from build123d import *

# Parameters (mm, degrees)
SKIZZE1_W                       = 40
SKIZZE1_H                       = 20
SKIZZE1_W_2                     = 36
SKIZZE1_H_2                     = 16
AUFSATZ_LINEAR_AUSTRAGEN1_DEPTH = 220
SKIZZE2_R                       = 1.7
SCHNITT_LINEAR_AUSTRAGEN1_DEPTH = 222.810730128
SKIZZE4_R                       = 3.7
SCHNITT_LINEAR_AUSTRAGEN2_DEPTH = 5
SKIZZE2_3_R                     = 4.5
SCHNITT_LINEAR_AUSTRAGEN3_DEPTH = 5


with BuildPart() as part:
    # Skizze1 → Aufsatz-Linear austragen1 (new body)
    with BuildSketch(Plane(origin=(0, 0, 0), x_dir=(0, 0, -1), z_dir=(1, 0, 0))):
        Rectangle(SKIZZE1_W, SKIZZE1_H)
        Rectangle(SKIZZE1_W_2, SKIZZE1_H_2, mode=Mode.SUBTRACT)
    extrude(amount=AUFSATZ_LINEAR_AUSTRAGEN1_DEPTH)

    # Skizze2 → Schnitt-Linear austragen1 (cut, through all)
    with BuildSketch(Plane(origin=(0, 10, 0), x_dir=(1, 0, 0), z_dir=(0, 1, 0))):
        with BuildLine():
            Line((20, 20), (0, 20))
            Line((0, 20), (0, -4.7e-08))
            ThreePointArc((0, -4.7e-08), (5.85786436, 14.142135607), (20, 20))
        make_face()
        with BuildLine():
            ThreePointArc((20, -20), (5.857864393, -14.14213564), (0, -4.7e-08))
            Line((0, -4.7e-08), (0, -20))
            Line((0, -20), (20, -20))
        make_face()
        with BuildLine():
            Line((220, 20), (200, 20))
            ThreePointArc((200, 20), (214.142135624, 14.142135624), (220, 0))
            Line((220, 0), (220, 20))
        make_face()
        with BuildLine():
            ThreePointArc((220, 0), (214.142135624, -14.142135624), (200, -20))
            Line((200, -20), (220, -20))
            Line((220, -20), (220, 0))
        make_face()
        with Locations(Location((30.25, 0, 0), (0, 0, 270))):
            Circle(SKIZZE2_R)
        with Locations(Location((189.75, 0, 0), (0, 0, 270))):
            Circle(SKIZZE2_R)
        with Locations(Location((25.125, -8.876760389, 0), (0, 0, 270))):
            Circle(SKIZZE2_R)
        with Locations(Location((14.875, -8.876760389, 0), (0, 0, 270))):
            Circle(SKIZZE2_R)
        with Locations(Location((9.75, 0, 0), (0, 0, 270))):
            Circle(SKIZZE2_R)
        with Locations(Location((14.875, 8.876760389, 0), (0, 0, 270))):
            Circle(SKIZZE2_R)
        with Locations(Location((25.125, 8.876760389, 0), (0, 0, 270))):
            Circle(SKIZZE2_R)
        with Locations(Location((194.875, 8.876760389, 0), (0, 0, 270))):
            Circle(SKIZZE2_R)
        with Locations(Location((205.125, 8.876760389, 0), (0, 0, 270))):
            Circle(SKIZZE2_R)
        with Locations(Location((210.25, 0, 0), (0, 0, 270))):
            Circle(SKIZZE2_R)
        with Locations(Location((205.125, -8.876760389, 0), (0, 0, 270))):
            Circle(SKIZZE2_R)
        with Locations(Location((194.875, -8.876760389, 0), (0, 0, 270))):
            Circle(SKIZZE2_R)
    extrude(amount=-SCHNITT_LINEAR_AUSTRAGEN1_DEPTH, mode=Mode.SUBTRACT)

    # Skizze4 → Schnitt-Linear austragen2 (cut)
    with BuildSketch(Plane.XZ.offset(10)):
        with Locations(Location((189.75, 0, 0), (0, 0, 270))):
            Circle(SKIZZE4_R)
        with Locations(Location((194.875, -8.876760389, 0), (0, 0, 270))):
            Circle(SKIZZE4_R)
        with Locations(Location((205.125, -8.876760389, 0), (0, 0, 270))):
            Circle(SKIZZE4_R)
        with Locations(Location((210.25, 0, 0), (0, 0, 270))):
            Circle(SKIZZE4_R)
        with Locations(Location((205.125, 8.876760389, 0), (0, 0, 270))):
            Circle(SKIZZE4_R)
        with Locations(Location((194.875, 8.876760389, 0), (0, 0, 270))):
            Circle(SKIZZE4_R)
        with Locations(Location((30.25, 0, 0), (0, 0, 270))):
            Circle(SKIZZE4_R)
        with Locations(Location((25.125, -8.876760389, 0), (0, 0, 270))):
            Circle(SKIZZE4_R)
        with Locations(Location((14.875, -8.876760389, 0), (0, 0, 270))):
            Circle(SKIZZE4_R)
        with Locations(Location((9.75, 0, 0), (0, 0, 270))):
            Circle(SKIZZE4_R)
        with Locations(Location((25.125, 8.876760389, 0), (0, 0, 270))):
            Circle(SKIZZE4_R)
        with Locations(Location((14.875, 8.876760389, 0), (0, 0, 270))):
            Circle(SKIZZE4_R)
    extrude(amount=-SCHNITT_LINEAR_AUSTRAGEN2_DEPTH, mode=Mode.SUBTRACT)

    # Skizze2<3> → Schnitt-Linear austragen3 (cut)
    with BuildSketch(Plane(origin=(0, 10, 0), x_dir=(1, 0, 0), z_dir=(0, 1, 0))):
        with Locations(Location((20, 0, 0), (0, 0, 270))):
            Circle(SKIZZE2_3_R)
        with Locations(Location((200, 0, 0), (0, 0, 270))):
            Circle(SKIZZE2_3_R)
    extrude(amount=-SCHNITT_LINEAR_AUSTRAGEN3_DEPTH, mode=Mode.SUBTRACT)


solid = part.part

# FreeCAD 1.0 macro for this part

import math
import FreeCAD as App
import Part
import Sketcher

doc = App.newDocument("Part")
body = doc.addObject("PartDesign::Body", "Body")

# Sketch on YZ plane
sketch1 = body.newObject("Sketcher::SketchObject", "Sketch")
sketch1.AttachmentSupport = (doc.getObject("YZ_Plane"), [""])
sketch1.MapMode = "FlatFace"
sketch1.addGeometry(Part.LineSegment(App.Vector(10, 20, 0), App.Vector(-10, 20, 0)), False)
sketch1.addGeometry(Part.LineSegment(App.Vector(-10, 20, 0), App.Vector(-10, -20, 0)), False)
sketch1.addGeometry(Part.LineSegment(App.Vector(-10, -20, 0), App.Vector(10, -20, 0)), False)
sketch1.addGeometry(Part.LineSegment(App.Vector(10, -20, 0), App.Vector(10, 20, 0)), False)
sketch1.addGeometry(Part.LineSegment(App.Vector(-8, -18, 0), App.Vector(-8, 18, 0)), False)
sketch1.addGeometry(Part.LineSegment(App.Vector(-8, 18, 0), App.Vector(8, 18, 0)), False)
sketch1.addGeometry(Part.LineSegment(App.Vector(8, 18, 0), App.Vector(8, -18, 0)), False)
sketch1.addGeometry(Part.LineSegment(App.Vector(8, -18, 0), App.Vector(-8, -18, 0)), False)
sketch1.addConstraint(Sketcher.Constraint("Coincident", 0, 2, 1, 1))
sketch1.addConstraint(Sketcher.Constraint("Coincident", 1, 2, 2, 1))
sketch1.addConstraint(Sketcher.Constraint("Coincident", 2, 2, 3, 1))
sketch1.addConstraint(Sketcher.Constraint("Coincident", 3, 2, 0, 1))
sketch1.addConstraint(Sketcher.Constraint("Coincident", 4, 2, 5, 1))
sketch1.addConstraint(Sketcher.Constraint("Coincident", 5, 2, 6, 1))
sketch1.addConstraint(Sketcher.Constraint("Coincident", 6, 2, 7, 1))
sketch1.addConstraint(Sketcher.Constraint("Coincident", 7, 2, 4, 1))
sketch1.addConstraint(Sketcher.Constraint("Horizontal", 0))
sketch1.addConstraint(Sketcher.Constraint("Vertical", 1))
sketch1.addConstraint(Sketcher.Constraint("Horizontal", 2))
sketch1.addConstraint(Sketcher.Constraint("Vertical", 3))
sketch1.addConstraint(Sketcher.Constraint("Vertical", 4))
sketch1.addConstraint(Sketcher.Constraint("Horizontal", 5))
sketch1.addConstraint(Sketcher.Constraint("Vertical", 6))
sketch1.addConstraint(Sketcher.Constraint("Horizontal", 7))
sketch1.addConstraint(Sketcher.Constraint("Symmetric", 0, 2, 2, 2, -1, 1))
sketch1.addConstraint(Sketcher.Constraint("Symmetric", 4, 2, 6, 2, -1, 1))
sketch1.addConstraint(Sketcher.Constraint("DistanceX", 0, 2, 0, 1, 20.0))
sketch1.addConstraint(Sketcher.Constraint("DistanceX", 5, 1, 5, 2, 16.0))
sketch1.addConstraint(Sketcher.Constraint("DistanceY", 1, 2, 1, 1, 40.0))
sketch1.addConstraint(Sketcher.Constraint("DistanceY", 4, 1, 4, 2, 36.0))
pad1 = body.newObject("PartDesign::Pad", "Pad")
pad1.Profile = sketch1
pad1.Length = 220

# Sketch on XZ plane
sketch2 = body.newObject("Sketcher::SketchObject", "Sketch001")
sketch2.AttachmentSupport = (doc.getObject("XZ_Plane"), [""])
sketch2.MapMode = "FlatFace"
sketch2.AttachmentOffset = App.Placement(App.Vector(0, 0, -10), App.Rotation())
sketch2.addGeometry(Part.LineSegment(App.Vector(20, -20, 0), App.Vector(0, -20, 0)), False)
sketch2.addGeometry(Part.LineSegment(App.Vector(0, -20, 0), App.Vector(0, 0, 0)), False)
sketch2.addGeometry(Part.ArcOfCircle(Part.Circle(App.Vector(20, 0, 0), App.Vector(0, 0, 1), 20), math.radians(180), math.radians(270)), False)
sketch2.addGeometry(Part.ArcOfCircle(Part.Circle(App.Vector(20, 0, 0), App.Vector(0, 0, 1), 20), math.radians(90), math.radians(180)), False)
sketch2.addGeometry(Part.LineSegment(App.Vector(0, 0, 0), App.Vector(0, 20, 0)), False)
sketch2.addGeometry(Part.LineSegment(App.Vector(0, 20, 0), App.Vector(20, 20, 0)), False)
sketch2.addGeometry(Part.LineSegment(App.Vector(220, -20, 0), App.Vector(200, -20, 0)), False)
sketch2.addGeometry(Part.ArcOfCircle(Part.Circle(App.Vector(200, 0, 0), App.Vector(0, 0, 1), 20), math.radians(-90), math.radians(0)), False)
sketch2.addGeometry(Part.LineSegment(App.Vector(220, 0, 0), App.Vector(220, -20, 0)), False)
sketch2.addGeometry(Part.ArcOfCircle(Part.Circle(App.Vector(200, 0, 0), App.Vector(0, 0, 1), 20), math.radians(0), math.radians(90)), False)
sketch2.addGeometry(Part.LineSegment(App.Vector(200, 20, 0), App.Vector(220, 20, 0)), False)
sketch2.addGeometry(Part.LineSegment(App.Vector(220, 20, 0), App.Vector(220, 0, 0)), False)
sketch2.addGeometry(Part.Circle(App.Vector(30.2, 0, 0), App.Vector(0, 0, 1), 1.7), False)
sketch2.addGeometry(Part.Circle(App.Vector(189.8, 0, 0), App.Vector(0, 0, 1), 1.7), False)
sketch2.addGeometry(Part.Circle(App.Vector(25.1, 8.9, 0), App.Vector(0, 0, 1), 1.7), False)
sketch2.addGeometry(Part.Circle(App.Vector(14.9, 8.9, 0), App.Vector(0, 0, 1), 1.7), False)
sketch2.addGeometry(Part.Circle(App.Vector(9.8, 0, 0), App.Vector(0, 0, 1), 1.7), False)
sketch2.addGeometry(Part.Circle(App.Vector(14.9, -8.9, 0), App.Vector(0, 0, 1), 1.7), False)
sketch2.addGeometry(Part.Circle(App.Vector(25.1, -8.9, 0), App.Vector(0, 0, 1), 1.7), False)
sketch2.addGeometry(Part.Circle(App.Vector(194.9, -8.9, 0), App.Vector(0, 0, 1), 1.7), False)
sketch2.addGeometry(Part.Circle(App.Vector(205.1, -8.9, 0), App.Vector(0, 0, 1), 1.7), False)
sketch2.addGeometry(Part.Circle(App.Vector(210.2, 0, 0), App.Vector(0, 0, 1), 1.7), False)
sketch2.addGeometry(Part.Circle(App.Vector(205.1, 8.9, 0), App.Vector(0, 0, 1), 1.7), False)
sketch2.addGeometry(Part.Circle(App.Vector(194.9, 8.9, 0), App.Vector(0, 0, 1), 1.7), False)
sketch2.addConstraint(Sketcher.Constraint("Coincident", 0, 2, 1, 1))
sketch2.addConstraint(Sketcher.Constraint("Tangent", 1, 2, 2, 1))
sketch2.addConstraint(Sketcher.Constraint("Tangent", 2, 2, 0, 1))
sketch2.addConstraint(Sketcher.Constraint("Tangent", 3, 2, 4, 1))
sketch2.addConstraint(Sketcher.Constraint("Coincident", 4, 2, 5, 1))
sketch2.addConstraint(Sketcher.Constraint("Tangent", 5, 2, 3, 1))
sketch2.addConstraint(Sketcher.Constraint("Tangent", 6, 2, 7, 1))
sketch2.addConstraint(Sketcher.Constraint("Tangent", 7, 2, 8, 1))
sketch2.addConstraint(Sketcher.Constraint("Coincident", 8, 2, 6, 1))
sketch2.addConstraint(Sketcher.Constraint("Tangent", 9, 2, 10, 1))
sketch2.addConstraint(Sketcher.Constraint("Coincident", 10, 2, 11, 1))
sketch2.addConstraint(Sketcher.Constraint("Tangent", 11, 2, 9, 1))
sketch2.addConstraint(Sketcher.Constraint("Horizontal", 0))
sketch2.addConstraint(Sketcher.Constraint("Vertical", 1))
sketch2.addConstraint(Sketcher.Constraint("Vertical", 4))
sketch2.addConstraint(Sketcher.Constraint("Horizontal", 5))
sketch2.addConstraint(Sketcher.Constraint("Horizontal", 6))
sketch2.addConstraint(Sketcher.Constraint("Vertical", 8))
sketch2.addConstraint(Sketcher.Constraint("Horizontal", 10))
sketch2.addConstraint(Sketcher.Constraint("Vertical", 11))
sketch2.addConstraint(Sketcher.Constraint("Coincident", 1, 2, -1, 1))
sketch2.addConstraint(Sketcher.Constraint("Coincident", 3, 2, -1, 1))
sketch2.addConstraint(Sketcher.Constraint("Coincident", 9, 3, 7, 3))
sketch2.addConstraint(Sketcher.Constraint("Equal", 2, 3))
sketch2.addConstraint(Sketcher.Constraint("Equal", 3, 7))
sketch2.addConstraint(Sketcher.Constraint("Equal", 7, 9))
sketch2.addConstraint(Sketcher.Constraint("Equal", 12, 13))
sketch2.addConstraint(Sketcher.Constraint("Equal", 13, 14))
sketch2.addConstraint(Sketcher.Constraint("Equal", 14, 15))
sketch2.addConstraint(Sketcher.Constraint("Equal", 15, 16))
sketch2.addConstraint(Sketcher.Constraint("Equal", 16, 17))
sketch2.addConstraint(Sketcher.Constraint("Equal", 17, 18))
sketch2.addConstraint(Sketcher.Constraint("Equal", 18, 19))
sketch2.addConstraint(Sketcher.Constraint("Equal", 19, 20))
sketch2.addConstraint(Sketcher.Constraint("Equal", 20, 21))
sketch2.addConstraint(Sketcher.Constraint("Equal", 21, 22))
sketch2.addConstraint(Sketcher.Constraint("Equal", 22, 23))
sketch2.addConstraint(Sketcher.Constraint("Symmetric", 15, 3, 17, 3, -1))
sketch2.addConstraint(Sketcher.Constraint("Symmetric", 14, 3, 18, 3, -1))
sketch2.addConstraint(Sketcher.Constraint("Symmetric", 20, 3, 22, 3, -1))
sketch2.addConstraint(Sketcher.Constraint("Symmetric", 19, 3, 23, 3, -1))
sketch2.addConstraint(Sketcher.Constraint("PointOnObject", 7, 3, -1))
sketch2.addConstraint(Sketcher.Constraint("PointOnObject", 12, 3, -1))
sketch2.addConstraint(Sketcher.Constraint("PointOnObject", 13, 3, -1))
sketch2.addConstraint(Sketcher.Constraint("PointOnObject", 16, 3, -1))
sketch2.addConstraint(Sketcher.Constraint("PointOnObject", 21, 3, -1))
sketch2.addConstraint(Sketcher.Constraint("Horizontal", 14, 3, 15, 3))
sketch2.addConstraint(Sketcher.Constraint("Horizontal", 18, 3, 19, 3))
sketch2.addConstraint(Sketcher.Constraint("Horizontal", 19, 3, 20, 3))
sketch2.addConstraint(Sketcher.Constraint("Radius", 2, 20.0))
sketch2.addConstraint(Sketcher.Constraint("Diameter", 12, 3.4))
sketch2.addConstraint(Sketcher.Constraint("DistanceX", -1, 1, 7, 3, 200.0))
sketch2.addConstraint(Sketcher.Constraint("DistanceX", 12, 3, 13, 3, 159.5))
sketch2.addConstraint(Sketcher.Constraint("DistanceX", 16, 3, 12, 3, 20.5))
sketch2.addConstraint(Sketcher.Constraint("DistanceX", 13, 3, 21, 3, 20.5))
sketch2.addConstraint(Sketcher.Constraint("DistanceX", -1, 1, 12, 3, 30.25))
sketch2.addConstraint(Sketcher.Constraint("DistanceX", 15, 3, 14, 3, 10.25))
sketch2.addConstraint(Sketcher.Constraint("DistanceX", 18, 3, 19, 3, 169.75))
sketch2.addConstraint(Sketcher.Constraint("DistanceX", 19, 3, 20, 3, 10.25))
sketch2.addConstraint(Sketcher.Constraint("DistanceX", -1, 1, 14, 3, 25.125))
sketch2.addConstraint(Sketcher.Constraint("DistanceY", -1, 1, 14, 3, 8.87676))
pocket1 = body.newObject("PartDesign::Pocket", "Pocket")
pocket1.Profile = sketch2
pocket1.Type = "ThroughAll"
pocket1.Reversed = True

# Sketch on XZ plane
sketch3 = body.newObject("Sketcher::SketchObject", "Sketch002")
sketch3.AttachmentSupport = (doc.getObject("XZ_Plane"), [""])
sketch3.MapMode = "FlatFace"
sketch3.AttachmentOffset = App.Placement(App.Vector(0, 0, 10), App.Rotation())
sketch3.addGeometry(Part.Circle(App.Vector(189.8, 0, 0), App.Vector(0, 0, 1), 3.7), False)
sketch3.addGeometry(Part.Circle(App.Vector(194.9, -8.9, 0), App.Vector(0, 0, 1), 3.7), False)
sketch3.addGeometry(Part.Circle(App.Vector(205.1, -8.9, 0), App.Vector(0, 0, 1), 3.7), False)
sketch3.addGeometry(Part.Circle(App.Vector(210.2, 0, 0), App.Vector(0, 0, 1), 3.7), False)
sketch3.addGeometry(Part.Circle(App.Vector(205.1, 8.9, 0), App.Vector(0, 0, 1), 3.7), False)
sketch3.addGeometry(Part.Circle(App.Vector(194.9, 8.9, 0), App.Vector(0, 0, 1), 3.7), False)
sketch3.addGeometry(Part.Circle(App.Vector(30.2, 0, 0), App.Vector(0, 0, 1), 3.7), False)
sketch3.addGeometry(Part.Circle(App.Vector(25.1, -8.9, 0), App.Vector(0, 0, 1), 3.7), False)
sketch3.addGeometry(Part.Circle(App.Vector(14.9, -8.9, 0), App.Vector(0, 0, 1), 3.7), False)
sketch3.addGeometry(Part.Circle(App.Vector(9.8, 0, 0), App.Vector(0, 0, 1), 3.7), False)
sketch3.addGeometry(Part.Circle(App.Vector(25.1, 8.9, 0), App.Vector(0, 0, 1), 3.7), False)
sketch3.addGeometry(Part.Circle(App.Vector(14.9, 8.9, 0), App.Vector(0, 0, 1), 3.7), False)
sketch3.addConstraint(Sketcher.Constraint("Equal", 0, 1))
sketch3.addConstraint(Sketcher.Constraint("Equal", 1, 2))
sketch3.addConstraint(Sketcher.Constraint("Equal", 2, 3))
sketch3.addConstraint(Sketcher.Constraint("Equal", 3, 4))
sketch3.addConstraint(Sketcher.Constraint("Equal", 4, 5))
sketch3.addConstraint(Sketcher.Constraint("Equal", 5, 6))
sketch3.addConstraint(Sketcher.Constraint("Equal", 6, 7))
sketch3.addConstraint(Sketcher.Constraint("Equal", 7, 8))
sketch3.addConstraint(Sketcher.Constraint("Equal", 8, 9))
sketch3.addConstraint(Sketcher.Constraint("Equal", 9, 10))
sketch3.addConstraint(Sketcher.Constraint("Equal", 10, 11))
sketch3.addConstraint(Sketcher.Constraint("Symmetric", 2, 3, 4, 3, -1))
sketch3.addConstraint(Sketcher.Constraint("Symmetric", 1, 3, 5, 3, -1))
sketch3.addConstraint(Sketcher.Constraint("Symmetric", 7, 3, 10, 3, -1))
sketch3.addConstraint(Sketcher.Constraint("Symmetric", 8, 3, 11, 3, -1))
sketch3.addConstraint(Sketcher.Constraint("PointOnObject", 0, 3, -1))
sketch3.addConstraint(Sketcher.Constraint("PointOnObject", 3, 3, -1))
sketch3.addConstraint(Sketcher.Constraint("PointOnObject", 6, 3, -1))
sketch3.addConstraint(Sketcher.Constraint("PointOnObject", 9, 3, -1))
sketch3.addConstraint(Sketcher.Constraint("Horizontal", 1, 3, 2, 3))
sketch3.addConstraint(Sketcher.Constraint("Horizontal", 2, 3, 7, 3))
sketch3.addConstraint(Sketcher.Constraint("Horizontal", 7, 3, 8, 3))
sketch3.addConstraint(Sketcher.Constraint("Diameter", 0, 7.4))
sketch3.addConstraint(Sketcher.Constraint("DistanceX", 7, 3, 2, 3, 180.0))
sketch3.addConstraint(Sketcher.Constraint("DistanceX", 8, 3, 1, 3, 180.0))
sketch3.addConstraint(Sketcher.Constraint("DistanceX", 9, 3, 0, 3, 180.0))
sketch3.addConstraint(Sketcher.Constraint("DistanceX", 0, 3, 3, 3, 20.5))
sketch3.addConstraint(Sketcher.Constraint("DistanceX", 6, 3, 0, 3, 159.5))
sketch3.addConstraint(Sketcher.Constraint("DistanceX", -1, 1, 0, 3, 189.75))
sketch3.addConstraint(Sketcher.Constraint("DistanceX", 1, 3, 2, 3, 10.25))
sketch3.addConstraint(Sketcher.Constraint("DistanceX", -1, 1, 1, 3, 194.875))
sketch3.addConstraint(Sketcher.Constraint("DistanceY", 1, 3, -1, 1, 8.87676))
pocket2 = body.newObject("PartDesign::Pocket", "Pocket001")
pocket2.Profile = sketch3
pocket2.Length = 5

# Sketch on XZ plane
sketch4 = body.newObject("Sketcher::SketchObject", "Sketch003")
sketch4.AttachmentSupport = (doc.getObject("XZ_Plane"), [""])
sketch4.MapMode = "FlatFace"
sketch4.AttachmentOffset = App.Placement(App.Vector(0, 0, -10), App.Rotation())
sketch4.addGeometry(Part.Circle(App.Vector(20, 0, 0), App.Vector(0, 0, 1), 4.5), False)
sketch4.addGeometry(Part.Circle(App.Vector(200, 0, 0), App.Vector(0, 0, 1), 4.5), False)
sketch4.addConstraint(Sketcher.Constraint("Equal", 0, 1))
sketch4.addConstraint(Sketcher.Constraint("PointOnObject", 0, 3, -1))
sketch4.addConstraint(Sketcher.Constraint("PointOnObject", 1, 3, -1))
sketch4.addConstraint(Sketcher.Constraint("Diameter", 0, 9.0))
sketch4.addConstraint(Sketcher.Constraint("DistanceX", -1, 1, 0, 3, 20.0))
sketch4.addConstraint(Sketcher.Constraint("DistanceX", -1, 1, 1, 3, 200.0))
pocket3 = body.newObject("PartDesign::Pocket", "Pocket002")
pocket3.Profile = sketch4
pocket3.Length = 5
pocket3.Reversed = True

doc.recompute()
